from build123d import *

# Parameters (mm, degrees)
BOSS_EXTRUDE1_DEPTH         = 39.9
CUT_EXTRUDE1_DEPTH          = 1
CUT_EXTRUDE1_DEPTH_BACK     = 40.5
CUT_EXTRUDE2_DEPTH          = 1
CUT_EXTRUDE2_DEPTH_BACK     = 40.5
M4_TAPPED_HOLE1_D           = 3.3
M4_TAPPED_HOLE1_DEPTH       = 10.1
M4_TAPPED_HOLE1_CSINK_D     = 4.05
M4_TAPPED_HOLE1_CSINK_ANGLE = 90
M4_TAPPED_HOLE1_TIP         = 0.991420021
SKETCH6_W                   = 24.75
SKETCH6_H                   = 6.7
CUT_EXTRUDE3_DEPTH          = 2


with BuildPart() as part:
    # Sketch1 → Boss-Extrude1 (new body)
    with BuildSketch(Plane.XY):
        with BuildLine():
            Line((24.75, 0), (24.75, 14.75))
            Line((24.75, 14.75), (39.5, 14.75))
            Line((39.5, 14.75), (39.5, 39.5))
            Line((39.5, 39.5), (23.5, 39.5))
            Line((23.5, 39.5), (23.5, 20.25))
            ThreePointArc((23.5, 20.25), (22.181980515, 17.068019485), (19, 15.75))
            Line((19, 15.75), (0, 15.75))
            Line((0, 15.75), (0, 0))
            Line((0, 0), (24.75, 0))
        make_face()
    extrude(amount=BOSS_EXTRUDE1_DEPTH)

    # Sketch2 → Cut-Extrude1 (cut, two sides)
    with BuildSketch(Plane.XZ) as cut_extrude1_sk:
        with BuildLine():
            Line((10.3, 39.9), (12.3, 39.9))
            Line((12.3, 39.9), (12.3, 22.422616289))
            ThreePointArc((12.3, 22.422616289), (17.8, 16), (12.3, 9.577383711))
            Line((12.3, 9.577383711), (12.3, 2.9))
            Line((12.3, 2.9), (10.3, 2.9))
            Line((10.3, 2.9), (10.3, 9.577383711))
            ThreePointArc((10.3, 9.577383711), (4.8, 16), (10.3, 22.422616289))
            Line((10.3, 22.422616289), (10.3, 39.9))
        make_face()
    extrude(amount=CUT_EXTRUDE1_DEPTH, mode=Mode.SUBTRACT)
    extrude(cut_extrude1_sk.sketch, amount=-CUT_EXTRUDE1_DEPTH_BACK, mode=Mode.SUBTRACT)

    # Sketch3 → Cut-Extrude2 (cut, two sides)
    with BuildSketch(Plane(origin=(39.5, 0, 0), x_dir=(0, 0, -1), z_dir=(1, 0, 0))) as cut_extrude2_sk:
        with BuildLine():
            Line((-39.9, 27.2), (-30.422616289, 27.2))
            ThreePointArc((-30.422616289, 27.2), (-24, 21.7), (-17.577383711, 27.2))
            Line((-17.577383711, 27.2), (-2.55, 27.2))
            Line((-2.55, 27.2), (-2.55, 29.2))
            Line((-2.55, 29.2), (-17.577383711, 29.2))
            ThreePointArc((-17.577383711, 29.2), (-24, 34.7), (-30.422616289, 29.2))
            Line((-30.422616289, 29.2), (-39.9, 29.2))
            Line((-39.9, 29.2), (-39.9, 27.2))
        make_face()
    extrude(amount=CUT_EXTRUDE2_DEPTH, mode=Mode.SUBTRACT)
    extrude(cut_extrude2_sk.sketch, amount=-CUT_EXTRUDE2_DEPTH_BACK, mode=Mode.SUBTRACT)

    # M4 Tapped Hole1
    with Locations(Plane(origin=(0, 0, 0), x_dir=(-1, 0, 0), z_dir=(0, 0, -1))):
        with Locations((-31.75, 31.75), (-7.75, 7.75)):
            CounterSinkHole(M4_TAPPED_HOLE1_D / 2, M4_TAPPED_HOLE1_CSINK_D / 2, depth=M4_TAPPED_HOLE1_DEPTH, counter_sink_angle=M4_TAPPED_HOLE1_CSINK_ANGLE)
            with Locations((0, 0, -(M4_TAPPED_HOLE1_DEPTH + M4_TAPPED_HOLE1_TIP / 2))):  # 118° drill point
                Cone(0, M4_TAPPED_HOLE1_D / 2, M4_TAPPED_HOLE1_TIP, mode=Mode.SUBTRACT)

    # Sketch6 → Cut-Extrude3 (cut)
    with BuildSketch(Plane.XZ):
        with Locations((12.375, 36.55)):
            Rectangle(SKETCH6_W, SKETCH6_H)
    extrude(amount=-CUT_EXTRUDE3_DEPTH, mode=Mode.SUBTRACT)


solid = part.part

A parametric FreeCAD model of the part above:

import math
import FreeCAD as App
import Part
import Sketcher
from FreeCAD import Vector
Q = App.Units.Quantity

doc = App.newDocument("Part")
body = doc.addObject("PartDesign::Body", "Body")

# Sketch on XY plane
sketch1 = body.newObject("Sketcher::SketchObject", "Sketch")
sketch1.AttachmentSupport = (doc.getObject("XY_Plane"), [""])
sketch1.MapMode = "FlatFace"
sketch1.addGeometry([
    Part.LineSegment(Vector(24.75, 0, 0), Vector(24.75, 14.75, 0)),  # 0
    Part.LineSegment(Vector(24.75, 14.75, 0), Vector(39.5, 14.75, 0)),  # 1
    Part.LineSegment(Vector(39.5, 14.75, 0), Vector(39.5, 39.5, 0)),  # 2
    Part.LineSegment(Vector(39.5, 39.5, 0), Vector(23.5, 39.5, 0)),  # 3
    Part.LineSegment(Vector(23.5, 39.5, 0), Vector(23.5, 20.25, 0)),  # 4
    Part.ArcOfCircle(Part.Circle(Vector(19, 20.25, 0), Vector(0, 0, 1), 4.5), math.radians(-90), math.radians(0)),  # 5
    Part.LineSegment(Vector(19, 15.75, 0), Vector(0, 15.75, 0)),  # 6
    Part.LineSegment(Vector(0, 15.75, 0), Vector(0, 0, 0)),  # 7
    Part.LineSegment(Vector(0, 0, 0), Vector(24.75, 0, 0)),  # 8
], False)
sketch1.addConstraint([
    Sketcher.Constraint("Coincident", 0, 2, 1, 1),
    Sketcher.Constraint("Coincident", 1, 2, 2, 1),
    Sketcher.Constraint("Coincident", 2, 2, 3, 1),
    Sketcher.Constraint("Coincident", 3, 2, 4, 1),
    Sketcher.Constraint("Tangent", 4, 2, 5, 2),
    Sketcher.Constraint("Tangent", 5, 1, 6, 1),
    Sketcher.Constraint("Coincident", 6, 2, 7, 1),
    Sketcher.Constraint("Coincident", 7, 2, 8, 1),
    Sketcher.Constraint("Coincident", 8, 2, 0, 1),
    Sketcher.Constraint("Vertical", 0),
    Sketcher.Constraint("Horizontal", 1),
    Sketcher.Constraint("Vertical", 2),
    Sketcher.Constraint("Horizontal", 3),
    Sketcher.Constraint("Vertical", 4),
    Sketcher.Constraint("Horizontal", 6),
    Sketcher.Constraint("Vertical", 7),
    Sketcher.Constraint("Horizontal", 8),
    Sketcher.Constraint("Coincident", 7, 2, -1, 1),
    Sketcher.Constraint("Equal", 1, 0),
    Sketcher.Constraint("Equal", 8, 2),
    Sketcher.Constraint("Radius", 5, Q("4.5 mm")),
    Sketcher.Constraint("DistanceX", 3, 2, 3, 1, Q("16 mm")),
    Sketcher.Constraint("DistanceX", 6, 2, 6, 1, Q("19 mm")),
    Sketcher.Constraint("DistanceY", 0, 2, 5, 1, Q("1 mm")),
    Sketcher.Constraint("DistanceX", 1, 1, 1, 2, Q("14.75 mm")),
])
pad1 = body.newObject("PartDesign::Pad", "Pad")
pad1.Profile = sketch1
pad1.Length = 39.9

# Sketch on XZ plane
sketch2 = body.newObject("Sketcher::SketchObject", "Sketch001")
sketch2.AttachmentSupport = (doc.getObject("XZ_Plane"), [""])
sketch2.MapMode = "FlatFace"
sketch2.addGeometry([
    Part.LineSegment(Vector(12.3, 39.9, 0), Vector(10.3, 39.9, 0)),  # 0
    Part.LineSegment(Vector(10.3, 39.9, 0), Vector(10.3, 22.422616, 0)),  # 1
    Part.ArcOfCircle(Part.Circle(Vector(11.3, 16, 0), Vector(0, 0, 1), 6.5), math.radians(98.849883), math.radians(261.150117)),  # 2
    Part.LineSegment(Vector(10.3, 9.577384, 0), Vector(10.3, 2.9, 0)),  # 3
    Part.LineSegment(Vector(10.3, 2.9, 0), Vector(12.3, 2.9, 0)),  # 4
    Part.LineSegment(Vector(12.3, 2.9, 0), Vector(12.3, 9.577384, 0)),  # 5
    Part.ArcOfCircle(Part.Circle(Vector(11.3, 16, 0), Vector(0, 0, 1), 6.5), math.radians(-81.150117), math.radians(81.150117)),  # 6
    Part.LineSegment(Vector(12.3, 22.422616, 0), Vector(12.3, 39.9, 0)),  # 7
], False)
sketch2.addConstraint([
    Sketcher.Constraint("Coincident", 0, 2, 1, 1),
    Sketcher.Constraint("Coincident", 1, 2, 2, 1),
    Sketcher.Constraint("Coincident", 2, 2, 3, 1),
    Sketcher.Constraint("Coincident", 3, 2, 4, 1),
    Sketcher.Constraint("Coincident", 4, 2, 5, 1),
    Sketcher.Constraint("Coincident", 5, 2, 6, 1),
    Sketcher.Constraint("Coincident", 6, 2, 7, 1),
    Sketcher.Constraint("Coincident", 7, 2, 0, 1),
    Sketcher.Constraint("Horizontal", 0),
    Sketcher.Constraint("Vertical", 1),
    Sketcher.Constraint("Vertical", 3),
    Sketcher.Constraint("Horizontal", 4),
    Sketcher.Constraint("Vertical", 5),
    Sketcher.Constraint("Vertical", 7),
    Sketcher.Constraint("Coincident", 6, 3, 2, 3),
    Sketcher.Constraint("Equal", 2, 6),
    Sketcher.Constraint("Horizontal", 2, 2, 5, 2),
    Sketcher.Constraint("Horizontal", 1, 2, 6, 2),
    Sketcher.Constraint("Vertical", 1, 2, 2, 2),
    Sketcher.Constraint("Radius", 2, Q("6.5 mm")),
    Sketcher.Constraint("DistanceX", 0, 2, 0, 1, Q("2 mm")),
    Sketcher.Constraint("DistanceY", -1, 1, 2, 3, Q("16 mm")),
    Sketcher.Constraint("DistanceY", 3, 2, 0, 2, Q("37 mm")),
    Sketcher.Constraint("DistanceX", -1, 1, 2, 3, Q("11.3 mm")),
    Sketcher.Constraint("DistanceY", -1, 1, 0, 2, Q("39.9 mm")),
])
pocket1 = body.newObject("PartDesign::Pocket", "Pocket")
pocket1.Profile = sketch2
pocket1.Type = "ThroughAll"
pocket1.Midplane = True

# Sketch on YZ plane
sketch3 = body.newObject("Sketcher::SketchObject", "Sketch002")
sketch3.AttachmentSupport = (doc.getObject("YZ_Plane"), [""])
sketch3.MapMode = "FlatFace"
sketch3.AttachmentOffset = App.Placement(Vector(0, 0, 39.5), App.Rotation())
sketch3.addGeometry([
    Part.LineSegment(Vector(27.2, 39.9, 0), Vector(27.2, 30.422616, 0)),  # 0
    Part.ArcOfCircle(Part.Circle(Vector(28.2, 24, 0), Vector(0, 0, 1), 6.5), math.radians(98.849883), math.radians(261.150117)),  # 1
    Part.LineSegment(Vector(27.2, 17.577384, 0), Vector(27.2, 2.55, 0)),  # 2
    Part.LineSegment(Vector(27.2, 2.55, 0), Vector(29.2, 2.55, 0)),  # 3
    Part.LineSegment(Vector(29.2, 2.55, 0), Vector(29.2, 17.577384, 0)),  # 4
    Part.ArcOfCircle(Part.Circle(Vector(28.2, 24, 0), Vector(0, 0, 1), 6.5), math.radians(-81.150117), math.radians(81.150117)),  # 5
    Part.LineSegment(Vector(29.2, 30.422616, 0), Vector(29.2, 39.9, 0)),  # 6
    Part.LineSegment(Vector(29.2, 39.9, 0), Vector(27.2, 39.9, 0)),  # 7
], False)
sketch3.addConstraint([
    Sketcher.Constraint("Coincident", 0, 2, 1, 1),
    Sketcher.Constraint("Coincident", 1, 2, 2, 1),
    Sketcher.Constraint("Coincident", 2, 2, 3, 1),
    Sketcher.Constraint("Coincident", 3, 2, 4, 1),
    Sketcher.Constraint("Coincident", 4, 2, 5, 1),
    Sketcher.Constraint("Coincident", 5, 2, 6, 1),
    Sketcher.Constraint("Coincident", 6, 2, 7, 1),
    Sketcher.Constraint("Coincident", 7, 2, 0, 1),
    Sketcher.Constraint("Vertical", 0),
    Sketcher.Constraint("Vertical", 2),
    Sketcher.Constraint("Horizontal", 3),
    Sketcher.Constraint("Vertical", 4),
    Sketcher.Constraint("Vertical", 6),
    Sketcher.Constraint("Horizontal", 7),
    Sketcher.Constraint("Coincident", 5, 3, 1, 3),
    Sketcher.Constraint("Equal", 1, 5),
    Sketcher.Constraint("Horizontal", 1, 2, 4, 2),
    Sketcher.Constraint("Horizontal", 0, 2, 5, 2),
    Sketcher.Constraint("Vertical", 0, 2, 1, 2),
    Sketcher.Constraint("Radius", 1, Q("6.5 mm")),
    Sketcher.Constraint("DistanceX", 3, 1, 3, 2, Q("2 mm")),
    Sketcher.Constraint("DistanceY", -1, 1, 1, 3, Q("24 mm")),
    Sketcher.Constraint("DistanceX", -1, 1, 1, 3, Q("28.2 mm")),
    Sketcher.Constraint("DistanceY", -1, 1, 6, 2, Q("39.9 mm")),
    Sketcher.Constraint("DistanceY", -1, 1, 2, 2, Q("2.55 mm")),
])
pocket2 = body.newObject("PartDesign::Pocket", "Pocket001")
pocket2.Profile = sketch3
pocket2.Type = "ThroughAll"
pocket2.Midplane = True

# Sketch on XY plane
sketch4 = body.newObject("Sketcher::SketchObject", "Sketch003")
sketch4.AttachmentSupport = (doc.getObject("XY_Plane"), [""])
sketch4.MapMode = "FlatFace"
sketch4.addGeometry([
    Part.Circle(Vector(31.75, 31.75, 0), Vector(0, 0, 1), 1.65),
    Part.Circle(Vector(7.75, 7.75, 0), Vector(0, 0, 1), 1.65),
], False)
sketch4.addConstraint([
    Sketcher.Constraint("Equal", 0, 1),
    Sketcher.Constraint("Diameter", 0, Q("3.3 mm")),
    Sketcher.Constraint("DistanceX", 1, 3, 0, 3, Q("24 mm")),
    Sketcher.Constraint("DistanceY", 1, 3, 0, 3, Q("24 mm")),
    Sketcher.Constraint("DistanceX", -1, 1, 0, 3, Q("31.75 mm")),
    Sketcher.Constraint("DistanceY", -1, 1, 0, 3, Q("31.75 mm")),
])
doc.recompute()
hole = body.newObject("PartDesign::Hole", "Hole")
hole.Profile = sketch4
hole.ThreadType = "None"
hole.Diameter = 3.3
hole.DepthType = "Dimension"
hole.Depth = 10.1
hole.DrillPoint = "Angled"
hole.DrillPointAngle = 118
hole.HoleCutType = "Countersink"
hole.HoleCutDiameter = 4.05
hole.HoleCutCountersinkAngle = 90
hole.Reversed = True

# Sketch on XZ plane
sketch5 = body.newObject("Sketcher::SketchObject", "Sketch004")
sketch5.AttachmentSupport = (doc.getObject("XZ_Plane"), [""])
sketch5.MapMode = "FlatFace"
sketch5.addGeometry([
    Part.LineSegment(Vector(0, 39.9, 0), Vector(0, 33.2, 0)),
    Part.LineSegment(Vector(0, 33.2, 0), Vector(24.75, 33.2, 0)),
    Part.LineSegment(Vector(24.75, 33.2, 0), Vector(24.75, 39.9, 0)),
    Part.LineSegment(Vector(24.75, 39.9, 0), Vector(0, 39.9, 0)),
], False)
sketch5.addConstraint([
    Sketcher.Constraint("Coincident", 0, 2, 1, 1),
    Sketcher.Constraint("Coincident", 1, 2, 2, 1),
    Sketcher.Constraint("Coincident", 2, 2, 3, 1),
    Sketcher.Constraint("Coincident", 3, 2, 0, 1),
    Sketcher.Constraint("Vertical", 0),
    Sketcher.Constraint("Horizontal", 1),
    Sketcher.Constraint("Vertical", 2),
    Sketcher.Constraint("Horizontal", 3),
    Sketcher.Constraint("PointOnObject", 0, 2, -2),
    Sketcher.Constraint("DistanceY", 0, 2, 0, 1, Q("6.7 mm")),
    Sketcher.Constraint("DistanceX", 1, 1, 1, 2, Q("24.75 mm")),
    Sketcher.Constraint("DistanceY", -1, 1, 0, 2, Q("33.2 mm")),
])
pocket3 = body.newObject("PartDesign::Pocket", "Pocket002")
pocket3.Profile = sketch5
pocket3.Length = 2

doc.recompute()
